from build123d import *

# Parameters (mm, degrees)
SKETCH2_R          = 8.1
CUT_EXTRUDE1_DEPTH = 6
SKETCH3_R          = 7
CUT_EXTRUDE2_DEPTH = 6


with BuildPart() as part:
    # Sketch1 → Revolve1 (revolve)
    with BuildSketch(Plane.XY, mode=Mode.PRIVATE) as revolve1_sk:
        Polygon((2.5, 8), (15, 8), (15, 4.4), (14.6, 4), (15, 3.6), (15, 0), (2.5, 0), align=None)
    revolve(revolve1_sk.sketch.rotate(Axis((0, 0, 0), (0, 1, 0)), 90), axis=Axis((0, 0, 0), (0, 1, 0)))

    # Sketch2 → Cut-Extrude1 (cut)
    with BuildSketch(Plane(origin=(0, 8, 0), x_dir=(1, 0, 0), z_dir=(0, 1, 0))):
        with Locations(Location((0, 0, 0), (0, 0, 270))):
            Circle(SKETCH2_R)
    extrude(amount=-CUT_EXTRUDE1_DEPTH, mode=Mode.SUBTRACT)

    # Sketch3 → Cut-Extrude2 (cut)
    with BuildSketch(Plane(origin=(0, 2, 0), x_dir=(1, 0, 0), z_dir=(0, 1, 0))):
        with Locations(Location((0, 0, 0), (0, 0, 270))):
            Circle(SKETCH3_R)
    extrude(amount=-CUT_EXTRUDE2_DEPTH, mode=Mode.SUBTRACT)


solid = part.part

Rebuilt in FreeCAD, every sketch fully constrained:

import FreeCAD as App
import Part
import Sketcher

V = App.Vector
Q = App.Units.Quantity


def add_polygon(sketch, points):
    """Adds a closed chain of lines whose ends are joined by coincident constraints."""
    first, n = sketch.GeometryCount, len(points)
    for a, b in zip(points, points[1:] + points[:1]):
        sketch.addGeometry(Part.LineSegment(App.Vector(*a, 0), App.Vector(*b, 0)), False)
    for i in range(n):
        sketch.addConstraint(Sketcher.Constraint("Coincident", first + i, 2, first + (i + 1) % n, 1))

doc = App.newDocument("Part")
body = doc.addObject("PartDesign::Body", "Body")

# Sketch on XY plane
sketch1 = doc.addObject("Sketcher::SketchObject", "Sketch")
body.addObject(sketch1)
sketch1.AttachmentSupport = (doc.XY_Plane, [""])
sketch1.MapMode = "FlatFace"
add_polygon(sketch1, [(15, 8), (2.5, 8), (2.5, 0), (15, 0), (15, 3.6), (14.6, 4), (15, 4.4)])  # lines 0-6
sketch1.addConstraint([
    Sketcher.Constraint("Horizontal", 0),
    Sketcher.Constraint("Vertical", 1),
    Sketcher.Constraint("Horizontal", 2),
    Sketcher.Constraint("Vertical", 3),
    Sketcher.Constraint("Vertical", 6),
    Sketcher.Constraint("PointOnObject", 1, 2, -1),
    Sketcher.Constraint("Perpendicular", 4, 5),
    Sketcher.Constraint("Vertical", 3, 2, 5, 2),
    Sketcher.Constraint("Equal", 3, 6),
    Sketcher.Constraint("Equal", 4, 5),
    Sketcher.Constraint("DistanceY", 1, 2, 1, 1, Q("8 mm")),
    Sketcher.Constraint("DistanceX", 0, 2, 0, 1, Q("12.5 mm")),
    Sketcher.Constraint("DistanceY", 3, 1, 3, 2, Q("3.6 mm")),
    Sketcher.Constraint("DistanceX", -1, 1, 2, 2, Q("15 mm")),
])
revolution = doc.addObject("PartDesign::Revolution", "Revolution")
body.addObject(revolution)
revolution.Profile = sketch1
revolution.ReferenceAxis = (sketch1, ["V_Axis"])
revolution.Angle = 360

# Sketch on XZ plane
sketch2 = doc.addObject("Sketcher::SketchObject", "Sketch001")
body.addObject(sketch2)
sketch2.AttachmentSupport = (doc.XZ_Plane, [""])
sketch2.MapMode = "FlatFace"
sketch2.AttachmentOffset = App.Placement(V(0, 0, -8), App.Rotation())
sketch2.addGeometry(Part.Circle(V(0, 0, 0), V(0, 0, 1), 8.1), False)
sketch2.addConstraint([
    Sketcher.Constraint("Coincident", 0, 3, -1, 1),
    Sketcher.Constraint("Diameter", 0, Q("16.2 mm")),
])
pocket1 = doc.addObject("PartDesign::Pocket", "Pocket")
body.addObject(pocket1)
pocket1.Profile = sketch2
pocket1.Length = 6
pocket1.Reversed = True

# Sketch on XZ plane
sketch3 = doc.addObject("Sketcher::SketchObject", "Sketch002")
body.addObject(sketch3)
sketch3.AttachmentSupport = (doc.XZ_Plane, [""])
sketch3.MapMode = "FlatFace"
sketch3.AttachmentOffset = App.Placement(V(0, 0, -2), App.Rotation())
sketch3.addGeometry(Part.Circle(V(0, 0, 0), V(0, 0, 1), 7), False)
sketch3.addConstraint([
    Sketcher.Constraint("Coincident", 0, 3, -1, 1),
    Sketcher.Constraint("Diameter", 0, Q("14 mm")),
])
pocket2 = doc.addObject("PartDesign::Pocket", "Pocket001")
body.addObject(pocket2)
pocket2.Profile = sketch3
pocket2.Length = 6
pocket2.Reversed = True

doc.recompute()
